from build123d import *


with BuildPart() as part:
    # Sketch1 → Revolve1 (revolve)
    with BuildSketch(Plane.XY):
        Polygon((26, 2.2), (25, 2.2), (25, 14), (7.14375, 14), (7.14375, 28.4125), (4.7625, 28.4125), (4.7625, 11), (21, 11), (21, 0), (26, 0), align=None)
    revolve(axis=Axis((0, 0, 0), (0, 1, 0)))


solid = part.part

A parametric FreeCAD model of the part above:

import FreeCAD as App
import Part
import Sketcher
from FreeCAD import Vector
Q = App.Units.Quantity

doc = App.newDocument("Part")
body = doc.addObject("PartDesign::Body", "Body")

sketch1 = body.newObject("Sketcher::SketchObject", "Sketch")
sketch1.AttachmentSupport = (doc.getObject("XY_Plane"), [""])
sketch1.MapMode = "FlatFace"
sketch1.addGeometry(Part.LineSegment(Vector(26, 2.2, 0), Vector(25, 2.2, 0)), False)
sketch1.addGeometry(Part.LineSegment(Vector(25, 2.2, 0), Vector(25, 14, 0)), False)
sketch1.addGeometry(Part.LineSegment(Vector(25, 14, 0), Vector(7.1, 14, 0)), False)
sketch1.addGeometry(Part.LineSegment(Vector(7.1, 14, 0), Vector(7.1, 28.4, 0)), False)
sketch1.addGeometry(Part.LineSegment(Vector(7.1, 28.4, 0), Vector(4.8, 28.4, 0)), False)
sketch1.addGeometry(Part.LineSegment(Vector(4.8, 28.4, 0), Vector(4.8, 11, 0)), False)
sketch1.addGeometry(Part.LineSegment(Vector(4.8, 11, 0), Vector(21, 11, 0)), False)
sketch1.addGeometry(Part.LineSegment(Vector(21, 11, 0), Vector(21, 0, 0)), False)
sketch1.addGeometry(Part.LineSegment(Vector(21, 0, 0), Vector(26, 0, 0)), False)
sketch1.addGeometry(Part.LineSegment(Vector(26, 0, 0), Vector(26, 2.2, 0)), False)
sketch1.addConstraint(Sketcher.Constraint("Coincident", 0, 2, 1, 1))
sketch1.addConstraint(Sketcher.Constraint("Coincident", 1, 2, 2, 1))
sketch1.addConstraint(Sketcher.Constraint("Coincident", 2, 2, 3, 1))
sketch1.addConstraint(Sketcher.Constraint("Coincident", 3, 2, 4, 1))
sketch1.addConstraint(Sketcher.Constraint("Coincident", 4, 2, 5, 1))
sketch1.addConstraint(Sketcher.Constraint("Coincident", 5, 2, 6, 1))
sketch1.addConstraint(Sketcher.Constraint("Coincident", 6, 2, 7, 1))
sketch1.addConstraint(Sketcher.Constraint("Coincident", 7, 2, 8, 1))
sketch1.addConstraint(Sketcher.Constraint("Coincident", 8, 2, 9, 1))
sketch1.addConstraint(Sketcher.Constraint("Coincident", 9, 2, 0, 1))
sketch1.addConstraint(Sketcher.Constraint("Horizontal", 0))
sketch1.addConstraint(Sketcher.Constraint("Vertical", 1))
sketch1.addConstraint(Sketcher.Constraint("Horizontal", 2))
sketch1.addConstraint(Sketcher.Constraint("Vertical", 3))
sketch1.addConstraint(Sketcher.Constraint("Horizontal", 4))
sketch1.addConstraint(Sketcher.Constraint("Vertical", 5))
sketch1.addConstraint(Sketcher.Constraint("Horizontal", 6))
sketch1.addConstraint(Sketcher.Constraint("Vertical", 7))
sketch1.addConstraint(Sketcher.Constraint("Horizontal", 8))
sketch1.addConstraint(Sketcher.Constraint("Vertical", 9))
sketch1.addConstraint(Sketcher.Constraint("PointOnObject", 7, 2, -1))
sketch1.addConstraint(Sketcher.Constraint("DistanceX", 0, 2, 0, 1, Q("1 mm")))
sketch1.addConstraint(Sketcher.Constraint("DistanceX", 8, 1, 8, 2, Q("5 mm")))
sketch1.addConstraint(Sketcher.Constraint("DistanceY", 7, 2, 7, 1, Q("11 mm")))
sketch1.addConstraint(Sketcher.Constraint("DistanceY", 1, 1, 1, 2, Q("11.8 mm")))
sketch1.addConstraint(Sketcher.Constraint("DistanceY", 9, 1, 9, 2, Q("2.2 mm")))
sketch1.addConstraint(Sketcher.Constraint("DistanceX", -1, 1, 0, 2, Q("25 mm")))
sketch1.addConstraint(Sketcher.Constraint("DistanceX", 6, 1, 6, 2, Q("16.2375 mm")))
sketch1.addConstraint(Sketcher.Constraint("DistanceY", 3, 1, 3, 2, Q("14.4125 mm")))
sketch1.addConstraint(Sketcher.Constraint("DistanceX", 2, 2, 2, 1, Q("17.85625 mm")))
revolution = body.newObject("PartDesign::Revolution", "Revolution")
revolution.Profile = sketch1
revolution.ReferenceAxis = (sketch1, ["V_Axis"])
revolution.Angle = 360

doc.recompute()
